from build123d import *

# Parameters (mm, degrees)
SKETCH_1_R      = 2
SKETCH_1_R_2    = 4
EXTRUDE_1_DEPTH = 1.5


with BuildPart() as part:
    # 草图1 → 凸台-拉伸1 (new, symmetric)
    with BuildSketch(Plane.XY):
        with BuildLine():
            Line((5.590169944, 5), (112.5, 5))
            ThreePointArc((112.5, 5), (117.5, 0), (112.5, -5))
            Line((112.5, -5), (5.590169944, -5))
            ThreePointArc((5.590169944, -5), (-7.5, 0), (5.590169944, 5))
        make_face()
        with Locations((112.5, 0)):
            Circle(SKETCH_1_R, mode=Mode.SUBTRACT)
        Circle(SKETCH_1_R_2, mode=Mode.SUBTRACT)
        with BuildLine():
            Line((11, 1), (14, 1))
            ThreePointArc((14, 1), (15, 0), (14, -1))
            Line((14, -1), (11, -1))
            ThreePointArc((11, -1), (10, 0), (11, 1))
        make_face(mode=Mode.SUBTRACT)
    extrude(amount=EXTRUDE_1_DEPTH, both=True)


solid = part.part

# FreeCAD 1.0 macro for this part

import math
import FreeCAD as App
import Part
import Sketcher

V = App.Vector
Q = App.Units.Quantity

doc = App.newDocument("Part")
body = doc.addObject("PartDesign::Body", "Body")

# Sketch on XY plane
sketch1 = body.newObject("Sketcher::SketchObject", "Sketch")
sketch1.AttachmentSupport = (doc.getObject("XY_Plane"), [""])
sketch1.MapMode = "FlatFace"
sketch1.addGeometry(Part.LineSegment(V(112.5, 5, 0), V(5.6, 5, 0)), False)
sketch1.addGeometry(Part.ArcOfCircle(Part.Circle(V(0, 0, 0), V(0, 0, 1), 7.5), math.radians(42), math.radians(318)), False)
sketch1.addGeometry(Part.LineSegment(V(5.6, -5, 0), V(112.5, -5, 0)), False)
sketch1.addGeometry(Part.ArcOfCircle(Part.Circle(V(112.5, 0, 0), V(0, 0, 1), 5), math.radians(-90), math.radians(90)), False)
sketch1.addGeometry(Part.Circle(V(112.5, 0, 0), V(0, 0, 1), 2), False)
sketch1.addGeometry(Part.LineSegment(V(11, 1, 0), V(14, 1, 0)), False)
sketch1.addGeometry(Part.ArcOfCircle(Part.Circle(V(14, 0, 0), V(0, 0, 1), 1), math.radians(-90), math.radians(90)), False)
sketch1.addGeometry(Part.LineSegment(V(14, -1, 0), V(11, -1, 0)), False)
sketch1.addGeometry(Part.ArcOfCircle(Part.Circle(V(11, 0, 0), V(0, 0, 1), 1), math.radians(90), math.radians(270)), False)
sketch1.addGeometry(Part.Circle(V(0, 0, 0), V(0, 0, 1), 4), False)
sketch1.addConstraint(Sketcher.Constraint("Coincident", 0, 2, 1, 1))
sketch1.addConstraint(Sketcher.Constraint("Coincident", 1, 2, 2, 1))
sketch1.addConstraint(Sketcher.Constraint("Tangent", 2, 2, 3, 1))
sketch1.addConstraint(Sketcher.Constraint("Tangent", 3, 2, 0, 1))
sketch1.addConstraint(Sketcher.Constraint("Tangent", 5, 2, 6, 2))
sketch1.addConstraint(Sketcher.Constraint("Tangent", 6, 1, 7, 1))
sketch1.addConstraint(Sketcher.Constraint("Tangent", 7, 2, 8, 2))
sketch1.addConstraint(Sketcher.Constraint("Tangent", 8, 1, 5, 1))
sketch1.addConstraint(Sketcher.Constraint("Horizontal", 0))
sketch1.addConstraint(Sketcher.Constraint("Horizontal", 2))
sketch1.addConstraint(Sketcher.Constraint("Horizontal", 5))
sketch1.addConstraint(Sketcher.Constraint("Horizontal", 7))
sketch1.addConstraint(Sketcher.Constraint("Coincident", 1, 3, -1, 1))
sketch1.addConstraint(Sketcher.Constraint("Coincident", 9, 3, -1, 1))
sketch1.addConstraint(Sketcher.Constraint("Coincident", 4, 3, 3, 3))
sketch1.addConstraint(Sketcher.Constraint("PointOnObject", 3, 3, -1))
sketch1.addConstraint(Sketcher.Constraint("PointOnObject", 6, 3, -1))
sketch1.addConstraint(Sketcher.Constraint("Diameter", 4, Q("4 mm")))
sketch1.addConstraint(Sketcher.Constraint("Diameter", 9, Q("8 mm")))
sketch1.addConstraint(Sketcher.Constraint("Radius", 3, Q("5 mm")))
sketch1.addConstraint(Sketcher.Constraint("Radius", 6, Q("1 mm")))
sketch1.addConstraint(Sketcher.Constraint("Radius", 1, Q("7.5 mm")))
sketch1.addConstraint(Sketcher.Constraint("DistanceX", 5, 1, 5, 2, Q("3 mm")))
sketch1.addConstraint(Sketcher.Constraint("DistanceX", -1, 1, 6, 3, Q("14 mm")))
sketch1.addConstraint(Sketcher.Constraint("DistanceX", -1, 1, 3, 3, Q("112.5 mm")))
pad1 = body.newObject("PartDesign::Pad", "Pad")
pad1.Profile = sketch1
pad1.Length = 3
pad1.Midplane = True

doc.recompute()
